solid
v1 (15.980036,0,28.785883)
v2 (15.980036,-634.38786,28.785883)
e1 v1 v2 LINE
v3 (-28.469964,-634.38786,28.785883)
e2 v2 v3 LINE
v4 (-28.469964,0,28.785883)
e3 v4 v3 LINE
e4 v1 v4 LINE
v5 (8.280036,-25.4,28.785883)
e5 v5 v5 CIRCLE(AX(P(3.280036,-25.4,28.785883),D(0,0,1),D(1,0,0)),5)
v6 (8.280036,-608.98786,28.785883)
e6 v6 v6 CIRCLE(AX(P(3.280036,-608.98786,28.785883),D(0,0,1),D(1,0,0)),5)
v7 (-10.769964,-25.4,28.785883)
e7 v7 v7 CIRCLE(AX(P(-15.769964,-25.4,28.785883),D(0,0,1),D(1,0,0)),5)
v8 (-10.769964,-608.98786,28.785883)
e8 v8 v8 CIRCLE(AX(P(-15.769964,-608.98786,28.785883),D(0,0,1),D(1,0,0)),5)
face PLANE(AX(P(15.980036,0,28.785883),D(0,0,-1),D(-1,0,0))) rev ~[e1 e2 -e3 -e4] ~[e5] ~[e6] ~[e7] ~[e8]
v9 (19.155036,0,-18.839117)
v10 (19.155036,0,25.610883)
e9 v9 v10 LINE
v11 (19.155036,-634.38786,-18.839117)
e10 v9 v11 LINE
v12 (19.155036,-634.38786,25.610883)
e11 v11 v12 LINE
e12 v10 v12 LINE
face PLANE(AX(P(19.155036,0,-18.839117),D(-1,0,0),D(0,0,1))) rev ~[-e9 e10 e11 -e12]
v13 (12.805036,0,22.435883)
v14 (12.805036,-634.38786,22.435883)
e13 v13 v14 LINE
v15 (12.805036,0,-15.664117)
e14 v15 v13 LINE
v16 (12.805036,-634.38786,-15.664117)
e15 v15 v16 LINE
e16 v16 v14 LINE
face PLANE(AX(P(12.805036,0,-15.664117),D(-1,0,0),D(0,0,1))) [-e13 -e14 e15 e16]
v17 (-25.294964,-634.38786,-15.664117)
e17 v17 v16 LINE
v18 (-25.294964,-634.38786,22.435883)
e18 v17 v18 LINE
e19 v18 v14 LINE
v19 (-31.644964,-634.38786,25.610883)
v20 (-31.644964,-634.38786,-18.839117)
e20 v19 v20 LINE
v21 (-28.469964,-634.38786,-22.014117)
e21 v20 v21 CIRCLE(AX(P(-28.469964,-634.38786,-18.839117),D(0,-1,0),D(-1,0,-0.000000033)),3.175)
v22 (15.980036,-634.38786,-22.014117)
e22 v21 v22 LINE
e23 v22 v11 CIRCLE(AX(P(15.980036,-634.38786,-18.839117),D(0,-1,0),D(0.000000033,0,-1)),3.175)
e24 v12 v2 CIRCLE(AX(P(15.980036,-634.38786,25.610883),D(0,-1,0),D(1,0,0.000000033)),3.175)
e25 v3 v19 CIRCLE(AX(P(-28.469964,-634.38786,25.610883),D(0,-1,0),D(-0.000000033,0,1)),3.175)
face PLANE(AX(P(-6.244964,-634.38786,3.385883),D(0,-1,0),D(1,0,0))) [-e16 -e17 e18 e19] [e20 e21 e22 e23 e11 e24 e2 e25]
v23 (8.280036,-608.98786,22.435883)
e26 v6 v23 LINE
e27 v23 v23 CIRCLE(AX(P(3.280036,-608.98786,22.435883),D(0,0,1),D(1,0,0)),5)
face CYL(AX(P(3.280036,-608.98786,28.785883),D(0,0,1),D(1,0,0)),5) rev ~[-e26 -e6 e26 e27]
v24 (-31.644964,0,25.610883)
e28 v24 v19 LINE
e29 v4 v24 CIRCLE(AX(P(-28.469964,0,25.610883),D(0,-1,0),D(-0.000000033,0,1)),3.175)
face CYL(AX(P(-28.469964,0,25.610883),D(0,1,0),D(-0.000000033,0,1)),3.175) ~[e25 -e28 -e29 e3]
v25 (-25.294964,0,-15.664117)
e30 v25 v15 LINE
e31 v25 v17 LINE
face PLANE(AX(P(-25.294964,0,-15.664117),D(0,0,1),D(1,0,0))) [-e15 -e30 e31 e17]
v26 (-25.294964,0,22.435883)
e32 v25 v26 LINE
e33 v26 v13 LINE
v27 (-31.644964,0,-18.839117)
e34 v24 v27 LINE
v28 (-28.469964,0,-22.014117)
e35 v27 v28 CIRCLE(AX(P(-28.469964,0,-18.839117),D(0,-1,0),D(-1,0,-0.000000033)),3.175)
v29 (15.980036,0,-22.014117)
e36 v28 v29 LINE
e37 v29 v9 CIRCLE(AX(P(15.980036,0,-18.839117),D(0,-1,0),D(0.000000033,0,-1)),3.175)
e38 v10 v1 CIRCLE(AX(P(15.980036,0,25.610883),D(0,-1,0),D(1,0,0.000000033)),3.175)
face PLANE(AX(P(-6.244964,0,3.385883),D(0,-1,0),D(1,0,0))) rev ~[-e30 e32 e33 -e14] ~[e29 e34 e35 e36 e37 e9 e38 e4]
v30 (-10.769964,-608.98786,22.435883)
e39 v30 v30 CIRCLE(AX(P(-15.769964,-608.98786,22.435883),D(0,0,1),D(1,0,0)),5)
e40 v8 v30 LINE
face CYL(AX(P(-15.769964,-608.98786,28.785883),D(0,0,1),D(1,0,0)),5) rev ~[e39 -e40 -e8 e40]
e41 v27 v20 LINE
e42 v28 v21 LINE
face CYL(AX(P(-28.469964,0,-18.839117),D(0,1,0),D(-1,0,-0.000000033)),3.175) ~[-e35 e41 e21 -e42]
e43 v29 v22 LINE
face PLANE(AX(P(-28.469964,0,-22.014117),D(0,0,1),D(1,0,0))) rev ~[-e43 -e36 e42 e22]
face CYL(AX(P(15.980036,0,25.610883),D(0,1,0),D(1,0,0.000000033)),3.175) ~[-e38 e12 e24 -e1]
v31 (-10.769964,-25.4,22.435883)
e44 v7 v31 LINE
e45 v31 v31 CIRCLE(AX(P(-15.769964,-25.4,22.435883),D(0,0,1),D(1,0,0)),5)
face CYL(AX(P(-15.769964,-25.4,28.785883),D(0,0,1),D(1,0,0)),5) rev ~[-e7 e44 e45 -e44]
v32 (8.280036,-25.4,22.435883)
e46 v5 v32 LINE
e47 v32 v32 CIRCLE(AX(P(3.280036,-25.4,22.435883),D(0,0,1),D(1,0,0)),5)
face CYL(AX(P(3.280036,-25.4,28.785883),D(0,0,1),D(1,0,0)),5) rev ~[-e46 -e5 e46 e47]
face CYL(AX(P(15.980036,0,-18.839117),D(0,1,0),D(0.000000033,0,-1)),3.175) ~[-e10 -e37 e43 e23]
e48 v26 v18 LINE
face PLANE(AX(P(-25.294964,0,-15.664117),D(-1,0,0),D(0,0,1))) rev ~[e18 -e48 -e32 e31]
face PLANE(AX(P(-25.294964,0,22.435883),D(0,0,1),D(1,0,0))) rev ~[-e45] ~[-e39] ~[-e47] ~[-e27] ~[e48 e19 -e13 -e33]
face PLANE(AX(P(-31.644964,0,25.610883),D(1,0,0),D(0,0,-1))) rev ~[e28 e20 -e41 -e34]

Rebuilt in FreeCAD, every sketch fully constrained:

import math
import FreeCAD as App
import Part
import Sketcher
Q = App.Units.Quantity


def add_polygon(sketch, points):
    """Adds a closed chain of lines whose ends are joined by coincident constraints."""
    first, n = sketch.GeometryCount, len(points)
    for a, b in zip(points, points[1:] + points[:1]):
        sketch.addGeometry(Part.LineSegment(App.Vector(*a, 0), App.Vector(*b, 0)), False)
    for i in range(n):
        sketch.addConstraint(Sketcher.Constraint("Coincident", first + i, 2, first + (i + 1) % n, 1))

doc = App.newDocument("Part")
body = doc.addObject("PartDesign::Body", "Body")

# Sketch on XZ plane
sketch1 = doc.addObject("Sketcher::SketchObject", "Sketch")
body.addObject(sketch1)
sketch1.AttachmentSupport = (doc.XZ_Plane, [""])
sketch1.MapMode = "FlatFace"
sketch1.addGeometry(Part.LineSegment(App.Vector(15.980036, 28.785883, 0), App.Vector(-28.469964, 28.785883, 0)), False)  # 0
sketch1.addGeometry(Part.ArcOfCircle(Part.Circle(App.Vector(-28.469964, 25.610883, 0), App.Vector(0, 0, 1), 3.175), math.radians(90.000002), math.radians(179.999998)), False)  # 1
sketch1.addGeometry(Part.LineSegment(App.Vector(-31.644964, 25.610883, 0), App.Vector(-31.644964, -18.839117, 0)), False)  # 2
sketch1.addGeometry(Part.ArcOfCircle(Part.Circle(App.Vector(-28.469964, -18.839117, 0), App.Vector(0, 0, 1), 3.175), math.radians(-179.999998), math.radians(-90.000002)), False)  # 3
sketch1.addGeometry(Part.LineSegment(App.Vector(-28.469964, -22.014117, 0), App.Vector(15.980036, -22.014117, 0)), False)  # 4
sketch1.addGeometry(Part.ArcOfCircle(Part.Circle(App.Vector(15.980036, -18.839117, 0), App.Vector(0, 0, 1), 3.175), math.radians(-89.999998), math.radians(-0.000002)), False)  # 5
sketch1.addGeometry(Part.LineSegment(App.Vector(19.155036, -18.839117, 0), App.Vector(19.155036, 25.610883, 0)), False)  # 6
sketch1.addGeometry(Part.ArcOfCircle(Part.Circle(App.Vector(15.980036, 25.610883, 0), App.Vector(0, 0, 1), 3.175), math.radians(0.000002), math.radians(89.999998)), False)  # 7
add_polygon(sketch1, [(12.805036, -15.664117), (-25.294964, -15.664117), (-25.294964, 22.435883), (12.805036, 22.435883)])  # lines 8-11
sketch1.addConstraint([
    Sketcher.Constraint("Tangent", 0, 2, 1, 1),
    Sketcher.Constraint("Tangent", 1, 2, 2, 1),
    Sketcher.Constraint("Tangent", 2, 2, 3, 1),
    Sketcher.Constraint("Tangent", 3, 2, 4, 1),
    Sketcher.Constraint("Tangent", 4, 2, 5, 1),
    Sketcher.Constraint("Tangent", 5, 2, 6, 1),
    Sketcher.Constraint("Tangent", 6, 2, 7, 1),
    Sketcher.Constraint("Tangent", 7, 2, 0, 1),
    Sketcher.Constraint("Horizontal", 0),
    Sketcher.Constraint("Vertical", 2),
    Sketcher.Constraint("Horizontal", 4),
    Sketcher.Constraint("Vertical", 6),
    Sketcher.Constraint("Horizontal", 8),
    Sketcher.Constraint("Vertical", 9),
    Sketcher.Constraint("Horizontal", 10),
    Sketcher.Constraint("Vertical", 11),
    Sketcher.Constraint("Equal", 1, 3),
    Sketcher.Constraint("Equal", 3, 5),
    Sketcher.Constraint("Equal", 5, 7),
    Sketcher.Constraint("Equal", 4, 2),
    Sketcher.Constraint("Equal", 10, 9),
    Sketcher.Constraint("DistanceX", 8, 2, 8, 1, Q("1.5 in")),
    Sketcher.Constraint("Radius", 1, Q("0.125 in")),
    Sketcher.Constraint("DistanceX", 0, 2, 0, 1, Q("1.75 in")),
    Sketcher.Constraint("DistanceY", 3, 2, 8, 2, Q("0.25 in")),
    Sketcher.Constraint("DistanceX", 2, 2, 8, 2, Q("0.25 in")),
    Sketcher.Constraint("DistanceX", 1, 3, -1, 1, 28.469964),
    Sketcher.Constraint("DistanceY", -1, 1, 1, 3, 25.610883),
])
pad1 = doc.addObject("PartDesign::Pad", "Pad")
body.addObject(pad1)
pad1.Profile = sketch1
pad1.Length = Q("24.9759 in")

# Sketch on XY plane
sketch2 = doc.addObject("Sketcher::SketchObject", "Sketch001")
body.addObject(sketch2)
sketch2.AttachmentSupport = (doc.XY_Plane, [""])
sketch2.MapMode = "FlatFace"
sketch2.AttachmentOffset = App.Placement(App.Vector(0, 0, 28.785883), App.Rotation())
sketch2.addGeometry([
    Part.Circle(App.Vector(-15.769964, -25.4, 0), App.Vector(0, 0, 1), 5),
    Part.Circle(App.Vector(3.280036, -25.4, 0), App.Vector(0, 0, 1), 5),
    Part.Circle(App.Vector(-15.769964, -608.98786, 0), App.Vector(0, 0, 1), 5),
    Part.Circle(App.Vector(3.280036, -608.98786, 0), App.Vector(0, 0, 1), 5),
], False)
sketch2.addConstraint([
    Sketcher.Constraint("Equal", 0, 1),
    Sketcher.Constraint("Equal", 1, 2),
    Sketcher.Constraint("Equal", 2, 3),
    Sketcher.Constraint("Horizontal", 0, 3, 1, 3),
    Sketcher.Constraint("Horizontal", 2, 3, 3, 3),
    Sketcher.Constraint("Vertical", 0, 3, 2, 3),
    Sketcher.Constraint("Vertical", 1, 3, 3, 3),
    Sketcher.Constraint("DistanceY", 0, 3, -1, 1, Q("1 in")),
    Sketcher.Constraint("Diameter", 0, 10.0),
    Sketcher.Constraint("DistanceX", 0, 3, 1, 3, Q("0.75 in")),
    Sketcher.Constraint("DistanceY", 2, 3, -1, 1, Q("23.9759 in")),
    Sketcher.Constraint("DistanceX", 0, 3, -1, 1, 15.769964),
])
pocket1 = doc.addObject("PartDesign::Pocket", "Pocket")
body.addObject(pocket1)
pocket1.Profile = sketch2
pocket1.Length = Q("1 in")

doc.recompute()
